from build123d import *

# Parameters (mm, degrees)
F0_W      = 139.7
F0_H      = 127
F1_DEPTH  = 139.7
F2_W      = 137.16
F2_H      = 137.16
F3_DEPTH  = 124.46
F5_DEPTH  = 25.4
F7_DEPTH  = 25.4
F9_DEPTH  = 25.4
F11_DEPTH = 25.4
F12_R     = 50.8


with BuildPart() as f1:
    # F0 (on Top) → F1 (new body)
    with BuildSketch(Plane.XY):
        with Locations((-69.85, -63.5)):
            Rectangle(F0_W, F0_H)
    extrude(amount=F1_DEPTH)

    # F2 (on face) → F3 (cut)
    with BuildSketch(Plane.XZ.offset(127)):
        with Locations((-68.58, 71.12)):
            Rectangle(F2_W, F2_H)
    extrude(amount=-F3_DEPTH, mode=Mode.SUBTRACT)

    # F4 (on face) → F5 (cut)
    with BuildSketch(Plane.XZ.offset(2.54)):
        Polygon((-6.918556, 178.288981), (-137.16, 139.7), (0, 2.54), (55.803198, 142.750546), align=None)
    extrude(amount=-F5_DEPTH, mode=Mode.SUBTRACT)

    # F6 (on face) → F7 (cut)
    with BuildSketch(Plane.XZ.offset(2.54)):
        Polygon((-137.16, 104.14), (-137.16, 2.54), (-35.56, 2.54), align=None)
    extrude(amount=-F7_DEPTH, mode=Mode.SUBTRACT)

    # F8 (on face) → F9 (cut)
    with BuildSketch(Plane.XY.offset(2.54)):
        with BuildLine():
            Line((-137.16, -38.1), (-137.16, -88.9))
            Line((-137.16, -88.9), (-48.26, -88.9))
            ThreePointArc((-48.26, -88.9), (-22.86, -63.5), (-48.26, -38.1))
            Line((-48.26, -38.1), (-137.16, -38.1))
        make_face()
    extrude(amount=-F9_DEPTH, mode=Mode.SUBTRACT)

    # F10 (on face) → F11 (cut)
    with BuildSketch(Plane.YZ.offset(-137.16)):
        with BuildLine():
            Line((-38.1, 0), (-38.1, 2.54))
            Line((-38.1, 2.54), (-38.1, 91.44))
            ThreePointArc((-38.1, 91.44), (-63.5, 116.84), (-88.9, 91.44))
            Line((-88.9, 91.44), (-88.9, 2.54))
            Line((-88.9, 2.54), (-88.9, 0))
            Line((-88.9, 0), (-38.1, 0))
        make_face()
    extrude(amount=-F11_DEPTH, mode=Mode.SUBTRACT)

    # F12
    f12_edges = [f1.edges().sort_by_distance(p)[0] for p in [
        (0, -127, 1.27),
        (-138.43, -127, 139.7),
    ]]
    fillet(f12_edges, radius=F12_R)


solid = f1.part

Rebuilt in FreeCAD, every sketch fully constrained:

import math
import FreeCAD as App
import Part
import Sketcher

V = App.Vector
Q = App.Units.Quantity


def edges_at(feature, points):
    """Names of the edges that pass closest to the given points."""
    edges = feature.Shape.Edges
    near = lambda p: min(range(len(edges)), key=lambda i: edges[i].distToShape(Part.Vertex(*p))[0])
    return sorted({f"Edge{near(p) + 1}" for p in points})


def add_polygon(sketch, points):
    """Adds a closed chain of lines whose ends are joined by coincident constraints."""
    first, n = sketch.GeometryCount, len(points)
    for a, b in zip(points, points[1:] + points[:1]):
        sketch.addGeometry(Part.LineSegment(App.Vector(*a, 0), App.Vector(*b, 0)), False)
    for i in range(n):
        sketch.addConstraint(Sketcher.Constraint("Coincident", first + i, 2, first + (i + 1) % n, 1))

doc = App.newDocument("Part")
params = doc.addObject("Spreadsheet::Sheet", "Params")
for row, (alias, value) in enumerate([
    ("sketch1_height", "5 in"),
    ("sketch1_width", "5.5 in"),
    ("pad1_length", "5.5 in"),
    ("sketch2_width", "5.4 in"),
    ("pocket1_length", "4.9 in"),
    ("pocket2_length", "1 in"),
    ("sketch4_width", "4 in"),
    ("pocket3_length", "1 in"),
    ("sketch5_radius", "1 in"),
    ("sketch5_width", "3.5 in"),
    ("pocket4_length", "1 in"),
    ("sketch6_radius", "1 in"),
    ("sketch6_height", "3.6 in"),
    ("pocket5_length", "1 in"),
    ("fillet_radius", "2 in"),
], start=1):
    params.set(f"A{row}", alias)
    params.set(f"B{row}", "=" + value)
    params.setAlias(f"B{row}", alias)

body = doc.addObject("PartDesign::Body", "Body")

# Sketch on XY plane
sketch1 = body.newObject("Sketcher::SketchObject", "Sketch")
sketch1.AttachmentSupport = (doc.getObject("XY_Plane"), [""])
sketch1.MapMode = "FlatFace"
add_polygon(sketch1, [(-140, 0), (-140, -127), (0, -127), (0, 0)])  # lines 0-3
sketch1.addConstraint([
    Sketcher.Constraint("Vertical", 0),
    Sketcher.Constraint("Horizontal", 1),
    Sketcher.Constraint("Vertical", 2),
    Sketcher.Constraint("Horizontal", 3),
    Sketcher.Constraint("Coincident", 2, 2, -1, 1),
    Sketcher.Constraint("DistanceY", 0, 2, 0, 1, Q("5 in")),
    Sketcher.Constraint("DistanceX", 1, 1, 1, 2, Q("5.5 in")),
])
sketch1.setExpression("Constraints[9]", "Params.sketch1_height")
sketch1.setExpression("Constraints[10]", "Params.sketch1_width")
pad1 = body.newObject("PartDesign::Pad", "Pad")
pad1.Profile = sketch1
pad1.setExpression("Length", "Params.pad1_length")

# Sketch on XZ plane
sketch2 = body.newObject("Sketcher::SketchObject", "Sketch001")
sketch2.AttachmentSupport = (doc.getObject("XZ_Plane"), [""])
sketch2.MapMode = "FlatFace"
sketch2.AttachmentOffset = App.Placement(V(0, 0, 5 * 25.4), App.Rotation())
add_polygon(sketch2, [(-137, 140), (-137, 3), (0, 3), (0, 140)])  # lines 0-3
sketch2.addConstraint([
    Sketcher.Constraint("Vertical", 0),
    Sketcher.Constraint("Horizontal", 1),
    Sketcher.Constraint("Vertical", 2),
    Sketcher.Constraint("Horizontal", 3),
    Sketcher.Constraint("PointOnObject", 1, 2, -2),
    Sketcher.Constraint("Equal", 3, 0),
    Sketcher.Constraint("DistanceX", 1, 1, 1, 2, Q("5.4 in")),
    Sketcher.Constraint("DistanceY", -1, 1, 0, 2, Q("0.1 in")),
])
sketch2.setExpression("Constraints[10]", "Params.sketch2_width")
pocket1 = body.newObject("PartDesign::Pocket", "Pocket")
pocket1.Profile = sketch2
pocket1.setExpression("Length", "Params.pocket1_length")

# Sketch on XZ plane
sketch3 = body.newObject("Sketcher::SketchObject", "Sketch002")
sketch3.AttachmentSupport = (doc.getObject("XZ_Plane"), [""])
sketch3.MapMode = "FlatFace"
sketch3.AttachmentOffset = App.Placement(V(0, 0, 0.1 * 25.4), App.Rotation())
add_polygon(sketch3, [(-7, 178), (-137, 140), (0, 3), (56, 143)])  # lines 0-3
sketch3.addConstraint([
    Sketcher.Constraint("PointOnObject", 1, 2, -2),
    Sketcher.Constraint("Angle", 1, Q("-45 deg")),
    Sketcher.Constraint("DistanceX", 0, 2, -1, 1, Q("5.4 in")),
    Sketcher.Constraint("DistanceY", -1, 1, 0, 2, Q("5.5 in")),
    Sketcher.Constraint("DistanceX", -1, 1, 2, 2, Q("55.803198 mm")),
    Sketcher.Constraint("Distance", 0, Q("135.83793 mm")),
    Sketcher.Constraint("DistanceY", -1, 1, 3, 2, Q("178.288981 mm")),
    Sketcher.Constraint("Distance", 2, Q("150.907237 mm")),
])
pocket2 = body.newObject("PartDesign::Pocket", "Pocket001")
pocket2.Profile = sketch3
pocket2.setExpression("Length", "Params.pocket2_length")

# Sketch on XZ plane
sketch4 = body.newObject("Sketcher::SketchObject", "Sketch003")
sketch4.AttachmentSupport = (doc.getObject("XZ_Plane"), [""])
sketch4.MapMode = "FlatFace"
sketch4.AttachmentOffset = App.Placement(V(0, 0, 0.1 * 25.4), App.Rotation())
add_polygon(sketch4, [(-137, 104), (-137, 3), (-36, 3)])  # lines 0-2
sketch4.addConstraint([
    Sketcher.Constraint("Vertical", 0),
    Sketcher.Constraint("Horizontal", 1),
    Sketcher.Constraint("Equal", 1, 0),
    Sketcher.Constraint("DistanceX", 1, 1, 1, 2, Q("4 in")),
    Sketcher.Constraint("DistanceX", 0, 2, -1, 1, Q("5.4 in")),
    Sketcher.Constraint("DistanceY", -1, 1, 0, 2, Q("0.1 in")),
])
sketch4.setExpression("Constraints[6]", "Params.sketch4_width")
pocket3 = body.newObject("PartDesign::Pocket", "Pocket002")
pocket3.Profile = sketch4
pocket3.setExpression("Length", "Params.pocket3_length")

# Sketch on XY plane
sketch5 = body.newObject("Sketcher::SketchObject", "Sketch004")
sketch5.AttachmentSupport = (doc.getObject("XY_Plane"), [""])
sketch5.MapMode = "FlatFace"
sketch5.AttachmentOffset = App.Placement(V(0, 0, 0.1 * 25.4), App.Rotation())
sketch5.addGeometry([
    Part.LineSegment(V(-137, -38, 0), V(-137, -89, 0)),
    Part.LineSegment(V(-137, -89, 0), V(-48, -89, 0)),
    Part.ArcOfCircle(Part.Circle(V(-48, -64, 0), V(0, 0, 1), 25), math.radians(-90), math.radians(90)),
    Part.LineSegment(V(-48, -38, 0), V(-137, -38, 0)),
], False)
sketch5.addConstraint([
    Sketcher.Constraint("Coincident", 0, 2, 1, 1),
    Sketcher.Constraint("Tangent", 1, 2, 2, 1),
    Sketcher.Constraint("Tangent", 2, 2, 3, 1),
    Sketcher.Constraint("Coincident", 3, 2, 0, 1),
    Sketcher.Constraint("Vertical", 0),
    Sketcher.Constraint("Horizontal", 1),
    Sketcher.Constraint("Horizontal", 3),
    Sketcher.Constraint("Radius", 2, Q("1 in")),
    Sketcher.Constraint("DistanceX", 1, 1, 1, 2, Q("3.5 in")),
    Sketcher.Constraint("DistanceX", 2, 3, -1, 1, Q("1.9 in")),
    Sketcher.Constraint("DistanceY", 2, 3, -1, 1, Q("2.5 in")),
])
sketch5.setExpression("Constraints[7]", "Params.sketch5_radius")
sketch5.setExpression("Constraints[8]", "Params.sketch5_width")
pocket4 = body.newObject("PartDesign::Pocket", "Pocket003")
pocket4.Profile = sketch5
pocket4.setExpression("Length", "Params.pocket4_length")

# Sketch on YZ plane
sketch6 = body.newObject("Sketcher::SketchObject", "Sketch005")
sketch6.AttachmentSupport = (doc.getObject("YZ_Plane"), [""])
sketch6.MapMode = "FlatFace"
sketch6.AttachmentOffset = App.Placement(V(0, 0, -5.4 * 25.4), App.Rotation())
sketch6.addGeometry([
    Part.LineSegment(V(-38, 0, 0), V(-38, 91, 0)),
    Part.ArcOfCircle(Part.Circle(V(-64, 91, 0), V(0, 0, 1), 25), math.radians(0), math.radians(180)),
    Part.LineSegment(V(-89, 91, 0), V(-89, 0, 0)),
    Part.LineSegment(V(-89, 0, 0), V(-38, 0, 0)),
], False)
sketch6.addConstraint([
    Sketcher.Constraint("Tangent", 0, 2, 1, 1),
    Sketcher.Constraint("Tangent", 1, 2, 2, 1),
    Sketcher.Constraint("Coincident", 2, 2, 3, 1),
    Sketcher.Constraint("Coincident", 3, 2, 0, 1),
    Sketcher.Constraint("Vertical", 0),
    Sketcher.Constraint("Vertical", 2),
    Sketcher.Constraint("Horizontal", 3),
    Sketcher.Constraint("PointOnObject", 2, 2, -1),
    Sketcher.Constraint("Radius", 1, Q("1 in")),
    Sketcher.Constraint("DistanceY", 0, 1, 0, 2, Q("3.6 in")),
    Sketcher.Constraint("DistanceX", 1, 3, -1, 1, Q("2.5 in")),
])
sketch6.setExpression("Constraints[8]", "Params.sketch6_radius")
sketch6.setExpression("Constraints[9]", "Params.sketch6_height")
pocket5 = body.newObject("PartDesign::Pocket", "Pocket004")
pocket5.Profile = sketch6
pocket5.setExpression("Length", "Params.pocket5_length")
doc.recompute()

fillet = body.newObject("PartDesign::Fillet", "Fillet")
fillet.Base = (pocket5, edges_at(pocket5, [(0, -127, 1.27), (-138.43, -127, 139.7)]))
fillet.setExpression("Radius", "Params.fillet_radius")

doc.recompute()
